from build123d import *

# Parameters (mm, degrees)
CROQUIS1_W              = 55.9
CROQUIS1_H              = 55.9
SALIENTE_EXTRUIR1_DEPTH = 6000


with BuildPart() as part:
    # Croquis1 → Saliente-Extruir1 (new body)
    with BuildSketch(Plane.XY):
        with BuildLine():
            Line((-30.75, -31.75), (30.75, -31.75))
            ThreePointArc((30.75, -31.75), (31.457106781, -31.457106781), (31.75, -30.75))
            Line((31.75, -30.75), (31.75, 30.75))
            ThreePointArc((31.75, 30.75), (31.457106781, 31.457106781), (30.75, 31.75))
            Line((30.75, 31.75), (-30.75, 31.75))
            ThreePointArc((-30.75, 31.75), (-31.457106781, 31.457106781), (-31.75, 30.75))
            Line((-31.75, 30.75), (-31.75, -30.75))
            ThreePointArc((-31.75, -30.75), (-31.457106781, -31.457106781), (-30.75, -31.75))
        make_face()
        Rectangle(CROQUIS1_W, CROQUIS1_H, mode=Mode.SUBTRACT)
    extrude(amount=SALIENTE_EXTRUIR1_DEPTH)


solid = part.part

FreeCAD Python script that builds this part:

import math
import FreeCAD as App
import Part
import Sketcher


def add_polygon(sketch, points):
    """Adds a closed chain of lines whose ends are joined by coincident constraints."""
    first, n = sketch.GeometryCount, len(points)
    for a, b in zip(points, points[1:] + points[:1]):
        sketch.addGeometry(Part.LineSegment(App.Vector(*a, 0), App.Vector(*b, 0)), False)
    for i in range(n):
        sketch.addConstraint(Sketcher.Constraint("Coincident", first + i, 2, first + (i + 1) % n, 1))

doc = App.newDocument("Part")
body = doc.addObject("PartDesign::Body", "Body")

# Sketch on XY plane
sketch1 = body.newObject("Sketcher::SketchObject", "Sketch")
sketch1.AttachmentSupport = (doc.getObject("XY_Plane"), [""])
sketch1.MapMode = "FlatFace"
sketch1.addGeometry(Part.LineSegment(App.Vector(-30.8, -31.8, 0), App.Vector(30.8, -31.8, 0)), False)  # 0
sketch1.addGeometry(Part.ArcOfCircle(Part.Circle(App.Vector(30.7, -30.7, 0), App.Vector(0, 0, 1), 1), math.radians(-90), math.radians(0)), False)  # 1
sketch1.addGeometry(Part.LineSegment(App.Vector(31.8, -30.8, 0), App.Vector(31.8, 30.8, 0)), False)  # 2
sketch1.addGeometry(Part.ArcOfCircle(Part.Circle(App.Vector(30.7, 30.7, 0), App.Vector(0, 0, 1), 1), math.radians(0), math.radians(90)), False)  # 3
sketch1.addGeometry(Part.LineSegment(App.Vector(30.8, 31.8, 0), App.Vector(-30.8, 31.8, 0)), False)  # 4
sketch1.addGeometry(Part.ArcOfCircle(Part.Circle(App.Vector(-30.7, 30.7, 0), App.Vector(0, 0, 1), 1), math.radians(90), math.radians(180)), False)  # 5
sketch1.addGeometry(Part.LineSegment(App.Vector(-31.8, 30.8, 0), App.Vector(-31.8, -30.8, 0)), False)  # 6
sketch1.addGeometry(Part.ArcOfCircle(Part.Circle(App.Vector(-30.7, -30.7, 0), App.Vector(0, 0, 1), 1), math.radians(-180), math.radians(-90)), False)  # 7
add_polygon(sketch1, [(27.9, -27.9), (-27.9, -27.9), (-27.9, 27.9), (27.9, 27.9)])  # lines 8-11
sketch1.addConstraint([
    Sketcher.Constraint("Tangent", 0, 2, 1, 1),
    Sketcher.Constraint("Tangent", 1, 2, 2, 1),
    Sketcher.Constraint("Tangent", 2, 2, 3, 1),
    Sketcher.Constraint("Tangent", 3, 2, 4, 1),
    Sketcher.Constraint("Tangent", 4, 2, 5, 1),
    Sketcher.Constraint("Tangent", 5, 2, 6, 1),
    Sketcher.Constraint("Tangent", 6, 2, 7, 1),
    Sketcher.Constraint("Tangent", 7, 2, 0, 1),
    Sketcher.Constraint("Horizontal", 0),
    Sketcher.Constraint("Vertical", 2),
    Sketcher.Constraint("Horizontal", 4),
    Sketcher.Constraint("Vertical", 6),
    Sketcher.Constraint("Horizontal", 8),
    Sketcher.Constraint("Vertical", 9),
    Sketcher.Constraint("Horizontal", 10),
    Sketcher.Constraint("Vertical", 11),
    Sketcher.Constraint("Equal", 1, 3),
    Sketcher.Constraint("Equal", 3, 5),
    Sketcher.Constraint("Equal", 5, 7),
    Sketcher.Constraint("Symmetric", 1, 3, 5, 3, -1, 1),
    Sketcher.Constraint("Symmetric", 8, 2, 10, 2, -1, 1),
    Sketcher.Constraint("Equal", 4, 2),
    Sketcher.Constraint("Equal", 10, 9),
    Sketcher.Constraint("Radius", 1, 1.0),
    Sketcher.Constraint("DistanceX", 0, 1, 0, 2, 61.5),
    Sketcher.Constraint("DistanceX", 8, 2, 8, 1, 55.9),
])
pad1 = body.newObject("PartDesign::Pad", "Pad")
pad1.Profile = sketch1
pad1.Length = 6000

doc.recompute()
